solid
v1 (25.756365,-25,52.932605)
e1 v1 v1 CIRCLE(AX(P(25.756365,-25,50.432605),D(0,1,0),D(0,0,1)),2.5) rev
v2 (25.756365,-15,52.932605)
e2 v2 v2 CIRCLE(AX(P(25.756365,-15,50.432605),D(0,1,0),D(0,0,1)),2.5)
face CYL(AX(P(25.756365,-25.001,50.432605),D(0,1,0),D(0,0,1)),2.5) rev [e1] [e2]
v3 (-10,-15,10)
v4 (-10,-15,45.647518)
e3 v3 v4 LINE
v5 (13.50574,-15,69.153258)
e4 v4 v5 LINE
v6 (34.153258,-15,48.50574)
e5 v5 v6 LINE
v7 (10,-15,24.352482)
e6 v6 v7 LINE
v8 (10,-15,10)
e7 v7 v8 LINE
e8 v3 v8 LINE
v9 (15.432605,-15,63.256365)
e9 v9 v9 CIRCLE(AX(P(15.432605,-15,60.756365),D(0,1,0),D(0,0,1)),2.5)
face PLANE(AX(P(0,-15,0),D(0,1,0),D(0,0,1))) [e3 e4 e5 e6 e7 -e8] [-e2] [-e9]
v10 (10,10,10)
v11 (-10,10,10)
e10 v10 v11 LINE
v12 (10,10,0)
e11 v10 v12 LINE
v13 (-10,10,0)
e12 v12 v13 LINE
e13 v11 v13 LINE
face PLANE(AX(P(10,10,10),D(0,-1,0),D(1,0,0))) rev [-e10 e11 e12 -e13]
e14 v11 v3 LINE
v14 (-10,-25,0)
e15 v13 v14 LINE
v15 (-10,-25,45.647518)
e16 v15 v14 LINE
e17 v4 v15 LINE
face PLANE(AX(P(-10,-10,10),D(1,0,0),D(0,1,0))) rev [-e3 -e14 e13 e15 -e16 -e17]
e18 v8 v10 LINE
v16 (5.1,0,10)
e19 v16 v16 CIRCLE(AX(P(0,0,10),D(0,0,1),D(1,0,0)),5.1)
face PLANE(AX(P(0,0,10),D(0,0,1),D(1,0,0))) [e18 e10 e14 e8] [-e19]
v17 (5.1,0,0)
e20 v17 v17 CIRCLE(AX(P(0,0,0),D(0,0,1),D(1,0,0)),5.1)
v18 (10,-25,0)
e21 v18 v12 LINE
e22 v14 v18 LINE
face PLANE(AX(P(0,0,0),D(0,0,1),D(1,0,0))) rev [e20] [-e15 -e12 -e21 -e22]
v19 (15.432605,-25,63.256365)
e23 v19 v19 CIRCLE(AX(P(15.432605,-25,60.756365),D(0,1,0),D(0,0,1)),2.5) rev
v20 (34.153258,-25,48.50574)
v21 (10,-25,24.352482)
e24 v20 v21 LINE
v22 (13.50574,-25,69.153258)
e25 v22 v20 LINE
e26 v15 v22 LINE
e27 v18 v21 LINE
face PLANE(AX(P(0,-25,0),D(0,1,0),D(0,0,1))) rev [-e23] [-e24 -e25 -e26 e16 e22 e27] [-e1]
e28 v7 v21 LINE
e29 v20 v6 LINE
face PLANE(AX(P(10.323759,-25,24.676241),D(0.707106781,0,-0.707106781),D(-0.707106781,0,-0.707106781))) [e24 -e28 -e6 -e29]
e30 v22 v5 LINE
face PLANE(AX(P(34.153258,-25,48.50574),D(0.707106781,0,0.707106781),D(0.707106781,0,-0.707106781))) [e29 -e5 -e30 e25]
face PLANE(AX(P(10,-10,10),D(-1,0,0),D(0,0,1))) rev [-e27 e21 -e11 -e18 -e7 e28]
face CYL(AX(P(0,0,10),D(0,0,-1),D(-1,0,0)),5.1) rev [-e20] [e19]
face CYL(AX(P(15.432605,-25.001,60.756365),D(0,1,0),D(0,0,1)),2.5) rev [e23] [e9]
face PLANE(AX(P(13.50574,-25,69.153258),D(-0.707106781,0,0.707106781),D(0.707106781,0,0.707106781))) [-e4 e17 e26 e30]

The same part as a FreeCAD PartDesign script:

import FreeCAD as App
import Part
import Sketcher
Q = App.Units.Quantity

doc = App.newDocument("Part")
body = doc.addObject("PartDesign::Body", "Body")

sketch1 = body.newObject("Sketcher::SketchObject", "Sketch")
sketch1.AttachmentSupport = (doc.getObject("XY_Plane"), [""])
sketch1.MapMode = "FlatFace"
sketch1.addGeometry([
    Part.LineSegment(App.Vector(-10, -15, 0), App.Vector(10, -15, 0)),
    Part.LineSegment(App.Vector(10, -15, 0), App.Vector(10, 10, 0)),
    Part.LineSegment(App.Vector(10, 10, 0), App.Vector(-10, 10, 0)),
    Part.LineSegment(App.Vector(-10, 10, 0), App.Vector(-10, -15, 0)),
    Part.Circle(App.Vector(0, 0, 0), App.Vector(0, 0, 1), 5),
], False)
sketch1.addConstraint([
    Sketcher.Constraint("Coincident", 0, 2, 1, 1),
    Sketcher.Constraint("Coincident", 1, 2, 2, 1),
    Sketcher.Constraint("Coincident", 2, 2, 3, 1),
    Sketcher.Constraint("Coincident", 3, 2, 0, 1),
    Sketcher.Constraint("Horizontal", 0),
    Sketcher.Constraint("Vertical", 1),
    Sketcher.Constraint("Horizontal", 2),
    Sketcher.Constraint("Vertical", 3),
    Sketcher.Constraint("Coincident", 4, 3, -1, 1),
    Sketcher.Constraint("Diameter", 4, Q("10.2 mm")),
    Sketcher.Constraint("DistanceX", 0, 1, 0, 2, Q("20 mm")),
    Sketcher.Constraint("DistanceY", 1, 1, 1, 2, Q("25 mm")),
    Sketcher.Constraint("DistanceX", -1, 1, 0, 2, Q("10 mm")),
    Sketcher.Constraint("DistanceY", 0, 2, -1, 1, Q("15 mm")),
])
pad1 = body.newObject("PartDesign::Pad", "Pad")
pad1.Profile = sketch1
pad1.Length = 10

sketch2 = body.newObject("Sketcher::SketchObject", "Sketch001")
sketch2.AttachmentSupport = (doc.getObject("XZ_Plane"), [""])
sketch2.MapMode = "FlatFace"
sketch2.AttachmentOffset = App.Placement(App.Vector(0, 0, 15), App.Rotation())
sketch2.addGeometry([
    Part.LineSegment(App.Vector(-10, 10, 0), App.Vector(-10, 0, 0)),
    Part.LineSegment(App.Vector(-10, 0, 0), App.Vector(10, 0, 0)),
    Part.LineSegment(App.Vector(10, 0, 0), App.Vector(10, 10, 0)),
    Part.LineSegment(App.Vector(10, 10, 0), App.Vector(14, 35, 0)),
    Part.LineSegment(App.Vector(14, 35, 0), App.Vector(14, 40, 0)),
    Part.LineSegment(App.Vector(14, 40, 0), App.Vector(-14, 40, 0)),
    Part.LineSegment(App.Vector(-14, 40, 0), App.Vector(-14, 35, 0)),
    Part.LineSegment(App.Vector(-14, 35, 0), App.Vector(-10, 10, 0)),
], False)
sketch2.addConstraint([
    Sketcher.Constraint("Coincident", 0, 2, 1, 1),
    Sketcher.Constraint("Coincident", 1, 2, 2, 1),
    Sketcher.Constraint("Coincident", 2, 2, 3, 1),
    Sketcher.Constraint("Coincident", 3, 2, 4, 1),
    Sketcher.Constraint("Coincident", 4, 2, 5, 1),
    Sketcher.Constraint("Coincident", 5, 2, 6, 1),
    Sketcher.Constraint("Coincident", 6, 2, 7, 1),
    Sketcher.Constraint("Coincident", 7, 2, 0, 1),
    Sketcher.Constraint("Vertical", 0),
    Sketcher.Constraint("Horizontal", 1),
    Sketcher.Constraint("Vertical", 2),
    Sketcher.Constraint("Vertical", 4),
    Sketcher.Constraint("Horizontal", 5),
    Sketcher.Constraint("Vertical", 6),
    Sketcher.Constraint("Symmetric", 0, 2, 1, 2, -1, 1),
    Sketcher.Constraint("Symmetric", 3, 2, 6, 2, -2),
    Sketcher.Constraint("Horizontal", 2, 2, 7, 2),
    Sketcher.Constraint("DistanceX", 1, 1, 1, 2, Q("20 mm")),
    Sketcher.Constraint("DistanceX", 5, 2, 5, 1, Q("29 mm")),
    Sketcher.Constraint("DistanceY", 0, 2, 0, 1, Q("10 mm")),
    Sketcher.Constraint("DistanceY", 4, 1, 4, 2, Q("5 mm")),
    Sketcher.Constraint("DistanceY", -1, 1, 3, 2, Q("35 mm")),
])
pad2 = body.newObject("PartDesign::Pad", "Pad001")
pad2.Profile = sketch2
pad2.Length = 10

sketch3 = body.newObject("Sketcher::SketchObject", "Sketch002")
sketch3.AttachmentSupport = (doc.getObject("XZ_Plane"), [""])
sketch3.MapMode = "FlatFace"
sketch3.AttachmentOffset = App.Placement(App.Vector(0, 0, 15), App.Rotation())
sketch3.addGeometry([
    Part.LineSegment(App.Vector(10, 25, 0), App.Vector(-5, 40, 0)),
    Part.LineSegment(App.Vector(-5, 40, 0), App.Vector(-14, 40, 0)),
    Part.LineSegment(App.Vector(-14, 40, 0), App.Vector(-10, 45, 0)),
    Part.LineSegment(App.Vector(-10, 45, 0), App.Vector(14, 69, 0)),
    Part.LineSegment(App.Vector(14, 69, 0), App.Vector(34, 49, 0)),
    Part.LineSegment(App.Vector(34, 49, 0), App.Vector(10, 25, 0)),
], False)
sketch3.addConstraint([
    Sketcher.Constraint("Coincident", 0, 2, 1, 1),
    Sketcher.Constraint("Coincident", 1, 2, 2, 1),
    Sketcher.Constraint("Coincident", 2, 2, 3, 1),
    Sketcher.Constraint("Coincident", 3, 2, 4, 1),
    Sketcher.Constraint("Coincident", 4, 2, 5, 1),
    Sketcher.Constraint("Coincident", 5, 2, 0, 1),
    Sketcher.Constraint("Horizontal", 1),
    Sketcher.Constraint("Perpendicular", 0, 3),
    Sketcher.Constraint("Perpendicular", 3, 4),
    Sketcher.Constraint("Perpendicular", 4, 5),
    Sketcher.Constraint("Equal", 3, 5),
    Sketcher.Constraint("Angle", 0, Q("135 deg")),
    Sketcher.Constraint("DistanceX", 1, 2, 1, 1, Q("9.5 mm")),
    Sketcher.Constraint("DistanceX", 0, 2, -1, 1, Q("5 mm")),
    Sketcher.Constraint("DistanceY", -1, 1, 0, 2, Q("40 mm")),
    Sketcher.Constraint("Distance", 3, Q("33.7 mm")),
    Sketcher.Constraint("Distance", 4, Q("29.2 mm")),
    Sketcher.Constraint("DistanceX", 2, 2, -1, 1, Q("10.323759 mm")),
])
pad3 = body.newObject("PartDesign::Pad", "Pad002")
pad3.Profile = sketch3
pad3.Length = 10

sketch4 = body.newObject("Sketcher::SketchObject", "Sketch003")
sketch4.AttachmentSupport = (doc.getObject("XZ_Plane"), [""])
sketch4.MapMode = "FlatFace"
sketch4.AttachmentOffset = App.Placement(App.Vector(0, 0, 15), App.Rotation())
sketch4.addGeometry(Part.Circle(App.Vector(15.4, 60.8, 0), App.Vector(0, 0, 1), 2.5), False)
sketch4.addConstraint([
    Sketcher.Constraint("Diameter", 0, Q("5 mm")),
    Sketcher.Constraint("DistanceX", -1, 1, 0, 3, Q("15.432605 mm")),
    Sketcher.Constraint("DistanceY", -1, 1, 0, 3, Q("60.756365 mm")),
])
pocket1 = body.newObject("PartDesign::Pocket", "Pocket")
pocket1.Profile = sketch4
pocket1.Type = "UpToFirst"
pocket1.Reversed = True

sketch5 = body.newObject("Sketcher::SketchObject", "Sketch004")
sketch5.AttachmentSupport = (doc.getObject("XZ_Plane"), [""])
sketch5.MapMode = "FlatFace"
sketch5.AttachmentOffset = App.Placement(App.Vector(0, 0, 15), App.Rotation())
sketch5.addGeometry(Part.Circle(App.Vector(25.8, 50.4, 0), App.Vector(0, 0, 1), 2.5), False)
sketch5.addConstraint([
    Sketcher.Constraint("Diameter", 0, Q("5 mm")),
    Sketcher.Constraint("DistanceX", -1, 1, 0, 3, Q("25.756365 mm")),
    Sketcher.Constraint("DistanceY", -1, 1, 0, 3, Q("50.432605 mm")),
])
pocket2 = body.newObject("PartDesign::Pocket", "Pocket001")
pocket2.Profile = sketch5
pocket2.Type = "UpToFirst"
pocket2.Reversed = True

sketch6 = body.newObject("Sketcher::SketchObject", "Sketch005")
sketch6.AttachmentSupport = (doc.getObject("XZ_Plane"), [""])
sketch6.MapMode = "FlatFace"
sketch6.AttachmentOffset = App.Placement(App.Vector(0, 0, 25), App.Rotation())
sketch6.addGeometry([
    Part.LineSegment(App.Vector(10, 24.4, 0), App.Vector(10, 10, 0)),
    Part.LineSegment(App.Vector(10, 10, 0), App.Vector(13.2, 27.5, 0)),
    Part.LineSegment(App.Vector(13.2, 27.5, 0), App.Vector(10, 24.4, 0)),
], False)
sketch6.addConstraint([
    Sketcher.Constraint("Coincident", 0, 2, 1, 1),
    Sketcher.Constraint("Coincident", 1, 2, 2, 1),
    Sketcher.Constraint("Coincident", 2, 2, 0, 1),
    Sketcher.Constraint("Vertical", 0),
    Sketcher.Constraint("Angle", 2, Q("-135 deg")),
    Sketcher.Constraint("DistanceX", -1, 1, 0, 2, Q("10 mm")),
    Sketcher.Constraint("DistanceY", -1, 1, 0, 2, Q("10 mm")),
    Sketcher.Constraint("DistanceY", 0, 2, 0, 1, Q("14.352482 mm")),
    Sketcher.Constraint("Distance", 1, Q("17.784316 mm")),
])
pocket3 = body.newObject("PartDesign::Pocket", "Pocket002")
pocket3.Profile = sketch6
pocket3.Type = "UpToFirst"

sketch7 = body.newObject("Sketcher::SketchObject", "Sketch006")
sketch7.AttachmentSupport = (doc.getObject("XZ_Plane"), [""])
sketch7.MapMode = "FlatFace"
sketch7.AttachmentOffset = App.Placement(App.Vector(0, 0, 25), App.Rotation())
sketch7.addGeometry([
    Part.LineSegment(App.Vector(-14.5, 40, 0), App.Vector(-14.5, 35, 0)),
    Part.LineSegment(App.Vector(-14.5, 35, 0), App.Vector(-10, 10, 0)),
    Part.LineSegment(App.Vector(-10, 10, 0), App.Vector(-10, 45.65, 0)),
    Part.LineSegment(App.Vector(-10, 45.65, 0), App.Vector(-10.32, 45.32, 0)),
    Part.LineSegment(App.Vector(-10.32, 45.32, 0), App.Vector(-14.5, 40, 0)),
], False)
sketch7.addConstraint([
    Sketcher.Constraint("Coincident", 0, 2, 1, 1),
    Sketcher.Constraint("Coincident", 1, 2, 2, 1),
    Sketcher.Constraint("Coincident", 2, 2, 3, 1),
    Sketcher.Constraint("Coincident", 3, 2, 4, 1),
    Sketcher.Constraint("Coincident", 4, 2, 0, 1),
    Sketcher.Constraint("Vertical", 0),
    Sketcher.Constraint("Vertical", 2),
    Sketcher.Constraint("DistanceY", 0, 2, 0, 1, Q("5 mm")),
    Sketcher.Constraint("Angle", 3, Q("-135 deg")),
    Sketcher.Constraint("DistanceY", -1, 1, 0, 2, Q("35 mm")),
    Sketcher.Constraint("DistanceX", 1, 2, -1, 1, Q("10 mm")),
    Sketcher.Constraint("DistanceY", -1, 1, 1, 2, Q("10 mm")),
    Sketcher.Constraint("DistanceX", 0, 2, -1, 1, Q("14.5 mm")),
    Sketcher.Constraint("DistanceY", 2, 1, 2, 2, Q("35.647518 mm")),
    Sketcher.Constraint("DistanceX", 3, 2, -1, 1, Q("10.323759 mm")),
])
pocket4 = body.newObject("PartDesign::Pocket", "Pocket003")
pocket4.Profile = sketch7
pocket4.Type = "UpToFirst"

doc.recompute()
